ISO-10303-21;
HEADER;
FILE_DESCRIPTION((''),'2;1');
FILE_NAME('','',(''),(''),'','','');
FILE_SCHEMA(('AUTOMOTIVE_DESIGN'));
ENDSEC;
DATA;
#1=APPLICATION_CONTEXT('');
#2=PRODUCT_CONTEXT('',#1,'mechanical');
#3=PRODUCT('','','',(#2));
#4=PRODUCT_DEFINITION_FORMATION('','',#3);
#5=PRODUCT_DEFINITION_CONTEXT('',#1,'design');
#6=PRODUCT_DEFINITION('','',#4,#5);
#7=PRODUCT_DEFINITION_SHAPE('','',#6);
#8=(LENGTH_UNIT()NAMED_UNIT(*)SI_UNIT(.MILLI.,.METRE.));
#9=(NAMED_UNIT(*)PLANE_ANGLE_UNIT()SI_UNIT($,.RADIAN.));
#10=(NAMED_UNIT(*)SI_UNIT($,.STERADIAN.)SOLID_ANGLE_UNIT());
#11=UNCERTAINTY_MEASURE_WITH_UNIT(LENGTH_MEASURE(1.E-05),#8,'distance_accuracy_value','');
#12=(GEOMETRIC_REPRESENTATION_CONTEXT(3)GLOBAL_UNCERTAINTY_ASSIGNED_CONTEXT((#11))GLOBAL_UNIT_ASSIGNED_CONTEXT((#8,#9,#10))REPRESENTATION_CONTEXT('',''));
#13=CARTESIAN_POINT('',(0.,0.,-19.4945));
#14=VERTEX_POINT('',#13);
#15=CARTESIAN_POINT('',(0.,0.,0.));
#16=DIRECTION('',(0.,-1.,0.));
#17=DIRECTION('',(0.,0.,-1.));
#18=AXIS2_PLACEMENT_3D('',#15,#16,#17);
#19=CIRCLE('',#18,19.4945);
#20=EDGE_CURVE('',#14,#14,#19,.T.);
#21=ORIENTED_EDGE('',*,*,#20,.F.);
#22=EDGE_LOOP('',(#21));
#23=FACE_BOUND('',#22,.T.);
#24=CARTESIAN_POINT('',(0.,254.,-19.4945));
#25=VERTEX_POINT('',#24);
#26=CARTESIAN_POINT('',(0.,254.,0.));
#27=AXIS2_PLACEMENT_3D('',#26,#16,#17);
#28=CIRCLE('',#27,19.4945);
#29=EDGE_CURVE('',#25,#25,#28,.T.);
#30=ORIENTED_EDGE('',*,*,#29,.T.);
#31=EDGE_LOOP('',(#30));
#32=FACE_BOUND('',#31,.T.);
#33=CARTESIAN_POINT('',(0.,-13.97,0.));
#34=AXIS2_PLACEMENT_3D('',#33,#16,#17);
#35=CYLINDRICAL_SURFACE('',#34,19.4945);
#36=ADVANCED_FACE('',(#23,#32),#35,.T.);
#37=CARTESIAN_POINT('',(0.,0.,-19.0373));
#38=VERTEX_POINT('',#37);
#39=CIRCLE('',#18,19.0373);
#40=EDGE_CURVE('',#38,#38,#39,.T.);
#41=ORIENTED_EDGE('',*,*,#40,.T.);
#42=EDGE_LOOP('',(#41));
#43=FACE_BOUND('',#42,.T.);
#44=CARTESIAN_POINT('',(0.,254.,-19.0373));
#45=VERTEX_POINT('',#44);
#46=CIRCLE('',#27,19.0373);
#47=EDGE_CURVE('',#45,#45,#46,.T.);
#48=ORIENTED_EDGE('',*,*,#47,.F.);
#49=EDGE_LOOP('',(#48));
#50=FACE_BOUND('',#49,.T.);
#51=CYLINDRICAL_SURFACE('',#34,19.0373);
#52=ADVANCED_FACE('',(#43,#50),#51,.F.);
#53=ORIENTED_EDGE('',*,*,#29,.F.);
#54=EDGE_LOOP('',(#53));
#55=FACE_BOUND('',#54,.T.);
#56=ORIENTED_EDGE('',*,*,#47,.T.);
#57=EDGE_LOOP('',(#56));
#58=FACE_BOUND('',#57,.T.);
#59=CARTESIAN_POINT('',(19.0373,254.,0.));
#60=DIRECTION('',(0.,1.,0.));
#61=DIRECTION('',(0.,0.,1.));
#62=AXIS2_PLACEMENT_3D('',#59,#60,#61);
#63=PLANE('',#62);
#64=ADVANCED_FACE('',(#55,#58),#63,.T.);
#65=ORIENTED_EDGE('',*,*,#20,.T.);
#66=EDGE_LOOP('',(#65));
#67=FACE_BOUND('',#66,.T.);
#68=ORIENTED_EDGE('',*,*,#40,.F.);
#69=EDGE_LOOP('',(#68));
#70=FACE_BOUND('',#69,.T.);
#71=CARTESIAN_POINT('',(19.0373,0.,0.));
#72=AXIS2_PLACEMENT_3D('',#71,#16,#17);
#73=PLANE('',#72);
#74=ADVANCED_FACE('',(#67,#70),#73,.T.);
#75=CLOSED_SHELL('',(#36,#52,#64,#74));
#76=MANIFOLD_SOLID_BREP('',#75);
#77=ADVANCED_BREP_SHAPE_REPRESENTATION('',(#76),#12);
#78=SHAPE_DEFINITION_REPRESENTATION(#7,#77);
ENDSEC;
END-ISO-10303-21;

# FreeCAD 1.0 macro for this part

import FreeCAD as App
import Part
import Sketcher
Q = App.Units.Quantity

doc = App.newDocument("Part")
params = doc.addObject("Spreadsheet::Sheet", "Params")
for row, (alias, value) in enumerate([
    ("sketch1_height", "10 in"),
    ("sketch1_width", "0.018 in"),
    ("revolution_angle", "360 deg"),
], start=1):
    params.set(f"A{row}", alias)
    params.set(f"B{row}", "=" + value)
    params.setAlias(f"B{row}", alias)

body = doc.addObject("PartDesign::Body", "Body")

# Sketch on XY plane
sketch1 = body.newObject("Sketcher::SketchObject", "Sketch")
sketch1.AttachmentSupport = (doc.getObject("XY_Plane"), [""])
sketch1.MapMode = "FlatFace"
sketch1.addGeometry([
    Part.LineSegment(App.Vector(19.04, 254, 0), App.Vector(19.04, 0, 0)),
    Part.LineSegment(App.Vector(19.04, 0, 0), App.Vector(19.49, 0, 0)),
    Part.LineSegment(App.Vector(19.49, 0, 0), App.Vector(19.49, 254, 0)),
    Part.LineSegment(App.Vector(19.49, 254, 0), App.Vector(19.04, 254, 0)),
], False)
sketch1.addConstraint([
    Sketcher.Constraint("Coincident", 0, 2, 1, 1),
    Sketcher.Constraint("Coincident", 1, 2, 2, 1),
    Sketcher.Constraint("Coincident", 2, 2, 3, 1),
    Sketcher.Constraint("Coincident", 3, 2, 0, 1),
    Sketcher.Constraint("Vertical", 0),
    Sketcher.Constraint("Horizontal", 1),
    Sketcher.Constraint("Vertical", 2),
    Sketcher.Constraint("Horizontal", 3),
    Sketcher.Constraint("PointOnObject", 0, 2, -1),
    Sketcher.Constraint("DistanceY", 0, 2, 0, 1, Q("10 in")),
    Sketcher.Constraint("DistanceX", 1, 1, 1, 2, Q("0.018 in")),
    Sketcher.Constraint("DistanceX", -1, 1, 0, 2, Q("0.7495 in")),
])
sketch1.setExpression("Constraints[9]", "Params.sketch1_height")
sketch1.setExpression("Constraints[10]", "Params.sketch1_width")
revolution = body.newObject("PartDesign::Revolution", "Revolution")
revolution.Profile = sketch1
revolution.ReferenceAxis = (sketch1, ["V_Axis"])
revolution.setExpression("Angle", "Params.revolution_angle")

doc.recompute()
